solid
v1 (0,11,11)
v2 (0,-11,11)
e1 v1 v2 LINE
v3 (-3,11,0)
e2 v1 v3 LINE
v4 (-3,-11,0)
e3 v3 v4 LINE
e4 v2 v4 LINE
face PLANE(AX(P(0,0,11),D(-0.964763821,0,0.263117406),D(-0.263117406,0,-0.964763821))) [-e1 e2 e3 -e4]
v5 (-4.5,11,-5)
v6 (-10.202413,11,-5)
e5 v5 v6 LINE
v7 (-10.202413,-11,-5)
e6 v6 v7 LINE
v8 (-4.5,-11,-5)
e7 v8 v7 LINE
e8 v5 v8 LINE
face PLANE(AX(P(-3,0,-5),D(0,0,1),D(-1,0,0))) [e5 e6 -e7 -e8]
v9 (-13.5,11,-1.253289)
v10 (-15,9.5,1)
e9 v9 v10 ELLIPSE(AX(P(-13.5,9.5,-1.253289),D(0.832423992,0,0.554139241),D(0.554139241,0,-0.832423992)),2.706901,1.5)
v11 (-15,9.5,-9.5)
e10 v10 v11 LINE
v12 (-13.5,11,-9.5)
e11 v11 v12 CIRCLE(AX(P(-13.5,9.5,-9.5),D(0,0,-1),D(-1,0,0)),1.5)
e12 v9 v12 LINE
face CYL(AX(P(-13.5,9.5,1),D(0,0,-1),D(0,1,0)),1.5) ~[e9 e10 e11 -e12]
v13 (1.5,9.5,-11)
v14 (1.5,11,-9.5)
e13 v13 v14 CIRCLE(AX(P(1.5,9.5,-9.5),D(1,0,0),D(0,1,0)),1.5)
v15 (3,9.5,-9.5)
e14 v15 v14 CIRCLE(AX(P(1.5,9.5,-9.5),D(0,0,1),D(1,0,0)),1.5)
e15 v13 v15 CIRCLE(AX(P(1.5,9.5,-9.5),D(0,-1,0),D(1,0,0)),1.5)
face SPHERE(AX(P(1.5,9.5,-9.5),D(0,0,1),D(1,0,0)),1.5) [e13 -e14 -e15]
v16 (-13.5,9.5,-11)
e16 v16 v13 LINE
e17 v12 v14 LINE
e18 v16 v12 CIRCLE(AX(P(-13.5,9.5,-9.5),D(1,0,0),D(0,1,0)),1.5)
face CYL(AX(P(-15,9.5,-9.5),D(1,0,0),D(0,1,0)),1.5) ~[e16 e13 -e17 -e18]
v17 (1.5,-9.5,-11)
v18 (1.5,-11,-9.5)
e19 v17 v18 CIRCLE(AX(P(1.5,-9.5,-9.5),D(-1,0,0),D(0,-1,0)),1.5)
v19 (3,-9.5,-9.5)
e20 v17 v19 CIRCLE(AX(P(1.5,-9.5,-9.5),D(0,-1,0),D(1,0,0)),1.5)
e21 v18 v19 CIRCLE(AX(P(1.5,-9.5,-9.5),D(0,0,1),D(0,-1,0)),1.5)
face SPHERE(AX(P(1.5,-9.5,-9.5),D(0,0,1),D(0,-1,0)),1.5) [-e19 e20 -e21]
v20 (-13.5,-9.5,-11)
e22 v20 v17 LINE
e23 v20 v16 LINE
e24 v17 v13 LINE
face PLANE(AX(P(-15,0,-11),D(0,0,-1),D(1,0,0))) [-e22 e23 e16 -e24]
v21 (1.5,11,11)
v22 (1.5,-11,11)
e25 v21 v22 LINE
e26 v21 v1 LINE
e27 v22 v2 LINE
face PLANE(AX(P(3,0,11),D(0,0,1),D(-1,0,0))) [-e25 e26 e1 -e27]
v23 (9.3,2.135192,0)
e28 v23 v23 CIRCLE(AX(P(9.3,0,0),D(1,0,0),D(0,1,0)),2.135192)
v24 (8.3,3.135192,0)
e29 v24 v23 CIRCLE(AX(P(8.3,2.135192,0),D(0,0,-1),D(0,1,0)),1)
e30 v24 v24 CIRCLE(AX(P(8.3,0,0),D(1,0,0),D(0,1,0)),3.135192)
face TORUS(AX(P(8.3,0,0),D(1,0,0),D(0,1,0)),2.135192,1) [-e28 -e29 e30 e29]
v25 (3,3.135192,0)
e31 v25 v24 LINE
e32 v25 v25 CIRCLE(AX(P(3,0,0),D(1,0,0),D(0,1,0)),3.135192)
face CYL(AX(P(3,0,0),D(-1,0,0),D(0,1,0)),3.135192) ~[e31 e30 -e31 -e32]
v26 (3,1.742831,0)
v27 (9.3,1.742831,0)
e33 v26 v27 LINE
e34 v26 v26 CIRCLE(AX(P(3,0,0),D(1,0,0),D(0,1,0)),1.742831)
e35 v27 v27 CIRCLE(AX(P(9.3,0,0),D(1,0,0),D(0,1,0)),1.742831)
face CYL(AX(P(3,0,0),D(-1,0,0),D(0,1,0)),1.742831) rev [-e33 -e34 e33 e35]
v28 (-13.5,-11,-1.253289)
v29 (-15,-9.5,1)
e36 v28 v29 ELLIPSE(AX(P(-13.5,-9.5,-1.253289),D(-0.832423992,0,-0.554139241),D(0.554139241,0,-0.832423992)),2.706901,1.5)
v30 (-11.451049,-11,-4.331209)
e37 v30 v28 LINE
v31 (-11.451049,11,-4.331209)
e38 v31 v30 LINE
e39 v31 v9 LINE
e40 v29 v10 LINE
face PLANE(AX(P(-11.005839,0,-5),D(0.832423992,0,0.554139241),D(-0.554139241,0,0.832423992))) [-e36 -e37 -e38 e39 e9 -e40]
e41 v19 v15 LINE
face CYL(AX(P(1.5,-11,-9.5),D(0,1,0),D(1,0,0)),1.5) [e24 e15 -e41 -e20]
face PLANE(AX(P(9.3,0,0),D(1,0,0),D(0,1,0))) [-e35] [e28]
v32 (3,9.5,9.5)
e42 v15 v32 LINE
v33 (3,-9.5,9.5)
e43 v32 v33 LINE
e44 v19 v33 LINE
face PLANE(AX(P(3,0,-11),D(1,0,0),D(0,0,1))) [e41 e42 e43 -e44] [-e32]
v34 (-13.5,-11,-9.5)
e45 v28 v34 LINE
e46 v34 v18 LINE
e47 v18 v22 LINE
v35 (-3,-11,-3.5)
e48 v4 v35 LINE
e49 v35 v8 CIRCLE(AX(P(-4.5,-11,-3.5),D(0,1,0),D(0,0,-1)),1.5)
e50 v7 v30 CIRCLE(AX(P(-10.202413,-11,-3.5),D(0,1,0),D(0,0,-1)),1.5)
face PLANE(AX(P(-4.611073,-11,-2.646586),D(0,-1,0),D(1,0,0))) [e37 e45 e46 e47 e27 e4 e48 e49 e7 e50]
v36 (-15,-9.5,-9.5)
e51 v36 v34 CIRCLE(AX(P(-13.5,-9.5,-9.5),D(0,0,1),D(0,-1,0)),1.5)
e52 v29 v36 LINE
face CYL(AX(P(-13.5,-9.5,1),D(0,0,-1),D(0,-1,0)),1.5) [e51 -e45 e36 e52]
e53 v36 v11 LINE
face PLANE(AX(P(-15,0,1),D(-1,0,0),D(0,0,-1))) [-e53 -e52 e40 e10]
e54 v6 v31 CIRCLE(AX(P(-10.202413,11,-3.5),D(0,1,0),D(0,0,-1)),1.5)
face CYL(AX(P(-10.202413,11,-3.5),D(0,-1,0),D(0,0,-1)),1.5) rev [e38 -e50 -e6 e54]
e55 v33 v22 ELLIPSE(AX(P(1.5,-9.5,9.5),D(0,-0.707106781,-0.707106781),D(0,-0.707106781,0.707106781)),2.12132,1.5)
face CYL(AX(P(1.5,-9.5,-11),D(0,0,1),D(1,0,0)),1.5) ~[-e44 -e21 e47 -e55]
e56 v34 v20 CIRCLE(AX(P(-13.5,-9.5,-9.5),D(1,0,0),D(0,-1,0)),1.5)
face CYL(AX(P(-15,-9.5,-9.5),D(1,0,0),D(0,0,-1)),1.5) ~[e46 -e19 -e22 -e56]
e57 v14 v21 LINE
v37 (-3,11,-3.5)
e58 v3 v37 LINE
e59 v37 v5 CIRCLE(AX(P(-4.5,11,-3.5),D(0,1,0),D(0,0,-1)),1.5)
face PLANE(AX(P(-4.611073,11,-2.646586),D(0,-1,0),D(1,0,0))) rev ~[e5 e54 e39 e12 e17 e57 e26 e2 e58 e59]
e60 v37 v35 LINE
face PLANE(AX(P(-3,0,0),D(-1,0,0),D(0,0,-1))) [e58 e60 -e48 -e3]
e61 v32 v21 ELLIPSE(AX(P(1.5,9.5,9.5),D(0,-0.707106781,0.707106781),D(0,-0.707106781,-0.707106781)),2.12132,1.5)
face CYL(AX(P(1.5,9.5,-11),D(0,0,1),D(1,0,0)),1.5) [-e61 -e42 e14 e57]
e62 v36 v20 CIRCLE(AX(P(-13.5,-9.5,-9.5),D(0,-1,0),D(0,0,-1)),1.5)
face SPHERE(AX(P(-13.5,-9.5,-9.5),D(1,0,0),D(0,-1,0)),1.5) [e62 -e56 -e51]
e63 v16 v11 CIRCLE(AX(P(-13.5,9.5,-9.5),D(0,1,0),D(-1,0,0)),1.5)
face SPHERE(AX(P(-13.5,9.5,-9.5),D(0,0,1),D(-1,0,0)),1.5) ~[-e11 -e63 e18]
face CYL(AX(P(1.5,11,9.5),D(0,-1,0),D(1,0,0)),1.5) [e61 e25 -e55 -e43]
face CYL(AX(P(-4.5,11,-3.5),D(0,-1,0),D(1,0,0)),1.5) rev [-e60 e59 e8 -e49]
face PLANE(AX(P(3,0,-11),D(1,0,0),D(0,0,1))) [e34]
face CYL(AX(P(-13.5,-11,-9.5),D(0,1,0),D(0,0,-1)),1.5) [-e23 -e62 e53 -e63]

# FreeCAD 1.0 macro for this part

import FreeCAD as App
import Part
import Sketcher
from FreeCAD import Vector


def edges_at(feature, points):
    """Names of the edges that pass closest to the given points."""
    edges = feature.Shape.Edges
    near = lambda p: min(range(len(edges)), key=lambda i: edges[i].distToShape(Part.Vertex(*p))[0])
    return sorted({f"Edge{near(p) + 1}" for p in points})


def add_polygon(sketch, points):
    """Adds a closed chain of lines whose ends are joined by coincident constraints."""
    first, n = sketch.GeometryCount, len(points)
    for a, b in zip(points, points[1:] + points[:1]):
        sketch.addGeometry(Part.LineSegment(App.Vector(*a, 0), App.Vector(*b, 0)), False)
    for i in range(n):
        sketch.addConstraint(Sketcher.Constraint("Coincident", first + i, 2, first + (i + 1) % n, 1))

doc = App.newDocument("Part")
body = doc.addObject("PartDesign::Body", "Body")

sketch1 = doc.addObject("Sketcher::SketchObject", "Sketch")
body.addObject(sketch1)
sketch1.AttachmentSupport = (doc.XZ_Plane, [""])
sketch1.MapMode = "FlatFace"
add_polygon(sketch1, [(3, -11), (3, 11), (0, 11), (-3, 0), (-3, -5), (-11, -5), (-15, 1), (-15, -11)])
sketch1.addConstraint([
    Sketcher.Constraint("Vertical", 0),
    Sketcher.Constraint("Horizontal", 1),
    Sketcher.Constraint("Vertical", 3),
    Sketcher.Constraint("Horizontal", 4),
    Sketcher.Constraint("Vertical", 6),
    Sketcher.Constraint("Horizontal", 7),
    Sketcher.Constraint("PointOnObject", 1, 2, -2),
    Sketcher.Constraint("PointOnObject", 2, 2, -1),
    Sketcher.Constraint("DistanceX", 1, 2, 1, 1, 3.0),
    Sketcher.Constraint("DistanceX", 7, 1, 7, 2, 18.0),
    Sketcher.Constraint("DistanceY", 0, 1, 0, 2, 22.0),
    Sketcher.Constraint("DistanceY", 3, 2, 3, 1, 5.0),
    Sketcher.Constraint("DistanceY", 6, 2, 6, 1, 12.0),
    Sketcher.Constraint("DistanceY", -1, 1, 0, 2, 11.0),
    Sketcher.Constraint("DistanceX", 2, 2, -1, 1, 3.0),
    Sketcher.Constraint("DistanceX", 4, 2, 4, 1, 8.005839),
])
pad1 = doc.addObject("PartDesign::Pad", "Pad")
body.addObject(pad1)
pad1.Profile = sketch1
pad1.Type = "TwoLengths"
pad1.Length = 11
pad1.Length2 = 11

sketch2 = doc.addObject("Sketcher::SketchObject", "Sketch001")
body.addObject(sketch2)
sketch2.AttachmentSupport = (doc.YZ_Plane, [""])
sketch2.MapMode = "FlatFace"
sketch2.AttachmentOffset = App.Placement(Vector(0, 0, 3), App.Rotation())
sketch2.addGeometry([
    Part.Circle(Vector(0, 0, 0), Vector(0, 0, 1), 3.1),
    Part.Circle(Vector(0, 0, 0), Vector(0, 0, 1), 1.7),
], False)
sketch2.addConstraint([
    Sketcher.Constraint("Coincident", 0, 3, -1, 1),
    Sketcher.Constraint("Coincident", 1, 3, -1, 1),
    Sketcher.Constraint("Diameter", 1, 3.485662),
    Sketcher.Constraint("Diameter", 0, 6.270384),
])
pad2 = doc.addObject("PartDesign::Pad", "Pad001")
body.addObject(pad2)
pad2.Profile = sketch2
pad2.Length = 6.3
doc.recompute()

fillet = doc.addObject("PartDesign::Fillet", "Fillet")
body.addObject(fillet)
fillet.Base = (pad2, edges_at(pad2, [
    (3, -11, 0),
    (-6, -11, -11),
    (-15, -11, -5),
    (3, 0, 11),
    (3, 11, 0),
    (3, 0, -11),
    (-15, 11, -5),
    (-15, 0, -11),
    (-6, 11, -11),
    (-3, 0, -5),
    (-11.006, 0, -5),
]))
fillet.Radius = 1.5
doc.recompute()

fillet2 = doc.addObject("PartDesign::Fillet", "Fillet001")
body.addObject(fillet2)
fillet2.Base = (fillet, edges_at(fillet, [(9.3, -3.135, 0)]))
fillet2.Radius = 1

sketch3 = doc.addObject("Sketcher::SketchObject", "Sketch002")
body.addObject(sketch3)
sketch3.AttachmentSupport = (doc.YZ_Plane, [""])
sketch3.MapMode = "FlatFace"
sketch3.AttachmentOffset = App.Placement(Vector(0, 0, 3), App.Rotation())
sketch3.addGeometry(Part.Circle(Vector(0, 0, 0), Vector(0, 0, 1), 1.7), False)
sketch3.addConstraint([
    Sketcher.Constraint("Coincident", 0, 3, -1, 1),
    Sketcher.Constraint("Diameter", 0, 3.485662),
])
pad3 = doc.addObject("PartDesign::Pad", "Pad002")
body.addObject(pad3)
pad3.Profile = sketch3
pad3.Length = 1.5
pad3.Reversed = True

doc.recompute()
